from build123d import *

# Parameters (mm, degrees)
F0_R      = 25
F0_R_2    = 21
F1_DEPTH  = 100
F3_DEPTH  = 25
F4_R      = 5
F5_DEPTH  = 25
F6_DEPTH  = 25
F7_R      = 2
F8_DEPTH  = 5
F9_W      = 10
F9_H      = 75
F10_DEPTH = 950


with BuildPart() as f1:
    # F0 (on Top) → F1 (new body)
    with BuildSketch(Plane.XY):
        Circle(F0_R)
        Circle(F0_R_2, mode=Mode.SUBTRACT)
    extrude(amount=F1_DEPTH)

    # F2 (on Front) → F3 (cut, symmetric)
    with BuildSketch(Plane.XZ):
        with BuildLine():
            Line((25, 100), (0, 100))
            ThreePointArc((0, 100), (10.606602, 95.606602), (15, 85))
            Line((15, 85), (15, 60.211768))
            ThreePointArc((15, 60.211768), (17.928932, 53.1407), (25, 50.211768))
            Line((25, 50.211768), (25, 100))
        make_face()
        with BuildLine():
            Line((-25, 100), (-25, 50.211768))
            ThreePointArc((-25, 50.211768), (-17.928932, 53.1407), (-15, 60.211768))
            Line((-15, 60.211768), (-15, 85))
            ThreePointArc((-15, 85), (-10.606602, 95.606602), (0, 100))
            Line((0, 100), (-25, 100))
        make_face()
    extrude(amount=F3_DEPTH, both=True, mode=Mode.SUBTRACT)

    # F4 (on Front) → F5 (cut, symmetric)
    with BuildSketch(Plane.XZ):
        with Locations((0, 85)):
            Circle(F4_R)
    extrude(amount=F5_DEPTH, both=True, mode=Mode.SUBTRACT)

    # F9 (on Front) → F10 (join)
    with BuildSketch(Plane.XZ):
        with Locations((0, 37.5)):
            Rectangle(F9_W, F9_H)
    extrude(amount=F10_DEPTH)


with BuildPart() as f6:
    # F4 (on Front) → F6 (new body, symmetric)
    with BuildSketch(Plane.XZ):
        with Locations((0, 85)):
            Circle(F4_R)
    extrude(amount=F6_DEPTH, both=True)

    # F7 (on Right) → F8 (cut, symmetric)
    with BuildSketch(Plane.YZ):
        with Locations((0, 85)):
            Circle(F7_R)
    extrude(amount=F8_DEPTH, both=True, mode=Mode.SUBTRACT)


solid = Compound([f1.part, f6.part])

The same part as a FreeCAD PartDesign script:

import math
import FreeCAD as App
import Part
import Sketcher

doc = App.newDocument("Part")
body = doc.addObject("PartDesign::Body", "Body")

# Sketch on XY plane
sketch1 = doc.addObject("Sketcher::SketchObject", "Sketch")
body.addObject(sketch1)
sketch1.AttachmentSupport = (doc.XY_Plane, [""])
sketch1.MapMode = "FlatFace"
sketch1.addGeometry(Part.Circle(App.Vector(0, 0, 0), App.Vector(0, 0, 1), 25), False)
sketch1.addGeometry(Part.Circle(App.Vector(0, 0, 0), App.Vector(0, 0, 1), 21), False)
sketch1.addConstraint(Sketcher.Constraint("Coincident", 0, 3, -1, 1))
sketch1.addConstraint(Sketcher.Constraint("Coincident", 1, 3, -1, 1))
sketch1.addConstraint(Sketcher.Constraint("Diameter", 0, 50.0))
sketch1.addConstraint(Sketcher.Constraint("Diameter", 1, 42.0))
pad1 = doc.addObject("PartDesign::Pad", "Pad")
body.addObject(pad1)
pad1.Profile = sketch1
pad1.Length = 100

# Sketch on XZ plane
sketch2 = doc.addObject("Sketcher::SketchObject", "Sketch001")
body.addObject(sketch2)
sketch2.AttachmentSupport = (doc.XZ_Plane, [""])
sketch2.MapMode = "FlatFace"
sketch2.addGeometry(Part.LineSegment(App.Vector(25, 100, 0), App.Vector(0, 100, 0)), False)
sketch2.addGeometry(Part.ArcOfCircle(Part.Circle(App.Vector(0.000001, 85.000001, 0), App.Vector(0, 0, 1), 14.999999), math.radians(-0.000004), math.radians(90.000004)), False)
sketch2.addGeometry(Part.LineSegment(App.Vector(15, 85, 0), App.Vector(15, 60.211768, 0)), False)
sketch2.addGeometry(Part.ArcOfCircle(Part.Circle(App.Vector(24.999999, 60.211767, 0), App.Vector(0, 0, 1), 9.999999), math.radians(179.999996), math.radians(270.000004)), False)
sketch2.addGeometry(Part.LineSegment(App.Vector(25, 50.211768, 0), App.Vector(25, 100, 0)), False)
sketch2.addGeometry(Part.LineSegment(App.Vector(-25, 100, 0), App.Vector(-25, 50.211768, 0)), False)
sketch2.addGeometry(Part.ArcOfCircle(Part.Circle(App.Vector(-24.999999, 60.211767, 0), App.Vector(0, 0, 1), 9.999999), math.radians(-90.000004), math.radians(0.000004)), False)
sketch2.addGeometry(Part.LineSegment(App.Vector(-15, 60.211768, 0), App.Vector(-15, 85, 0)), False)
sketch2.addGeometry(Part.ArcOfCircle(Part.Circle(App.Vector(-0.000001, 85.000001, 0), App.Vector(0, 0, 1), 14.999999), math.radians(89.999996), math.radians(180.000004)), False)
sketch2.addGeometry(Part.LineSegment(App.Vector(0, 100, 0), App.Vector(-25, 100, 0)), False)
sketch2.addConstraint(Sketcher.Constraint("Tangent", 0, 2, 1, 2))
sketch2.addConstraint(Sketcher.Constraint("Tangent", 1, 1, 2, 1))
sketch2.addConstraint(Sketcher.Constraint("Tangent", 2, 2, 3, 1))
sketch2.addConstraint(Sketcher.Constraint("Coincident", 3, 2, 4, 1))
sketch2.addConstraint(Sketcher.Constraint("Coincident", 4, 2, 0, 1))
sketch2.addConstraint(Sketcher.Constraint("Coincident", 5, 2, 6, 1))
sketch2.addConstraint(Sketcher.Constraint("Tangent", 6, 2, 7, 1))
sketch2.addConstraint(Sketcher.Constraint("Tangent", 7, 2, 8, 2))
sketch2.addConstraint(Sketcher.Constraint("Tangent", 8, 1, 9, 1))
sketch2.addConstraint(Sketcher.Constraint("Coincident", 9, 2, 5, 1))
sketch2.addConstraint(Sketcher.Constraint("Horizontal", 0))
sketch2.addConstraint(Sketcher.Constraint("Vertical", 2))
sketch2.addConstraint(Sketcher.Constraint("Vertical", 4))
sketch2.addConstraint(Sketcher.Constraint("Vertical", 5))
sketch2.addConstraint(Sketcher.Constraint("Vertical", 7))
sketch2.addConstraint(Sketcher.Constraint("Horizontal", 9))
sketch2.addConstraint(Sketcher.Constraint("Coincident", 8, 3, 1, 3))
sketch2.addConstraint(Sketcher.Constraint("Equal", 3, 6))
sketch2.addConstraint(Sketcher.Constraint("Equal", 1, 8))
sketch2.addConstraint(Sketcher.Constraint("Symmetric", 3, 3, 6, 3, -2))
sketch2.addConstraint(Sketcher.Constraint("Vertical", 6, 3, 5, 2))
sketch2.addConstraint(Sketcher.Constraint("Equal", 0, 9))
sketch2.addConstraint(Sketcher.Constraint("Radius", 1, 14.999999))
sketch2.addConstraint(Sketcher.Constraint("Radius", 3, 9.999999))
sketch2.addConstraint(Sketcher.Constraint("DistanceY", -1, 1, 1, 3, 85.000001))
sketch2.addConstraint(Sketcher.Constraint("DistanceY", 2, 2, 2, 1, 24.788232))
pocket1 = doc.addObject("PartDesign::Pocket", "Pocket")
body.addObject(pocket1)
pocket1.Profile = sketch2
pocket1.Length = 50
pocket1.Midplane = True

# Sketch on XZ plane
sketch3 = doc.addObject("Sketcher::SketchObject", "Sketch002")
body.addObject(sketch3)
sketch3.AttachmentSupport = (doc.XZ_Plane, [""])
sketch3.MapMode = "FlatFace"
sketch3.addGeometry(Part.Circle(App.Vector(0, 85, 0), App.Vector(0, 0, 1), 5), False)
sketch3.addConstraint(Sketcher.Constraint("PointOnObject", 0, 3, -2))
sketch3.addConstraint(Sketcher.Constraint("Diameter", 0, 10.0))
sketch3.addConstraint(Sketcher.Constraint("DistanceY", -1, 1, 0, 3, 85.0))
pocket2 = doc.addObject("PartDesign::Pocket", "Pocket001")
body.addObject(pocket2)
pocket2.Profile = sketch3
pocket2.Length = 50
pocket2.Midplane = True

# Sketch on XZ plane
sketch4 = doc.addObject("Sketcher::SketchObject", "Sketch003")
body.addObject(sketch4)
sketch4.AttachmentSupport = (doc.XZ_Plane, [""])
sketch4.MapMode = "FlatFace"
sketch4.addGeometry(Part.LineSegment(App.Vector(-5, 75, 0), App.Vector(-5, 0, 0)), False)
sketch4.addGeometry(Part.LineSegment(App.Vector(-5, 0, 0), App.Vector(5, 0, 0)), False)
sketch4.addGeometry(Part.LineSegment(App.Vector(5, 0, 0), App.Vector(5, 75, 0)), False)
sketch4.addGeometry(Part.LineSegment(App.Vector(5, 75, 0), App.Vector(-5, 75, 0)), False)
sketch4.addConstraint(Sketcher.Constraint("Coincident", 0, 2, 1, 1))
sketch4.addConstraint(Sketcher.Constraint("Coincident", 1, 2, 2, 1))
sketch4.addConstraint(Sketcher.Constraint("Coincident", 2, 2, 3, 1))
sketch4.addConstraint(Sketcher.Constraint("Coincident", 3, 2, 0, 1))
sketch4.addConstraint(Sketcher.Constraint("Vertical", 0))
sketch4.addConstraint(Sketcher.Constraint("Horizontal", 1))
sketch4.addConstraint(Sketcher.Constraint("Vertical", 2))
sketch4.addConstraint(Sketcher.Constraint("Horizontal", 3))
sketch4.addConstraint(Sketcher.Constraint("Symmetric", 0, 2, 1, 2, -1, 1))
sketch4.addConstraint(Sketcher.Constraint("DistanceX", 1, 1, 1, 2, 10.0))
sketch4.addConstraint(Sketcher.Constraint("DistanceY", 0, 2, 0, 1, 75.0))
pad2 = doc.addObject("PartDesign::Pad", "Pad001")
body.addObject(pad2)
pad2.Profile = sketch4
pad2.Length = 950
body2 = doc.addObject("PartDesign::Body", "Body001")

# Sketch on XZ plane
sketch5 = doc.addObject("Sketcher::SketchObject", "Sketch004")
body2.addObject(sketch5)
sketch5.AttachmentSupport = (doc.getObject("XZ_Plane001"), [""])
sketch5.MapMode = "FlatFace"
sketch5.addGeometry(Part.Circle(App.Vector(0, 85, 0), App.Vector(0, 0, 1), 5), False)
sketch5.addConstraint(Sketcher.Constraint("PointOnObject", 0, 3, -2))
sketch5.addConstraint(Sketcher.Constraint("Diameter", 0, 10.0))
sketch5.addConstraint(Sketcher.Constraint("DistanceY", -1, 1, 0, 3, 85.0))
pad3 = doc.addObject("PartDesign::Pad", "Pad002")
body2.addObject(pad3)
pad3.Profile = sketch5
pad3.Length = 50
pad3.Midplane = True

# Sketch on YZ plane
sketch6 = doc.addObject("Sketcher::SketchObject", "Sketch005")
body2.addObject(sketch6)
sketch6.AttachmentSupport = (doc.getObject("YZ_Plane001"), [""])
sketch6.MapMode = "FlatFace"
sketch6.addGeometry(Part.Circle(App.Vector(0, 85, 0), App.Vector(0, 0, 1), 2), False)
sketch6.addConstraint(Sketcher.Constraint("PointOnObject", 0, 3, -2))
sketch6.addConstraint(Sketcher.Constraint("Diameter", 0, 4.0))
sketch6.addConstraint(Sketcher.Constraint("DistanceY", -1, 1, 0, 3, 85.0))
pocket3 = doc.addObject("PartDesign::Pocket", "Pocket002")
body2.addObject(pocket3)
pocket3.Profile = sketch6
pocket3.Length = 10
pocket3.Midplane = True

doc.recompute()
